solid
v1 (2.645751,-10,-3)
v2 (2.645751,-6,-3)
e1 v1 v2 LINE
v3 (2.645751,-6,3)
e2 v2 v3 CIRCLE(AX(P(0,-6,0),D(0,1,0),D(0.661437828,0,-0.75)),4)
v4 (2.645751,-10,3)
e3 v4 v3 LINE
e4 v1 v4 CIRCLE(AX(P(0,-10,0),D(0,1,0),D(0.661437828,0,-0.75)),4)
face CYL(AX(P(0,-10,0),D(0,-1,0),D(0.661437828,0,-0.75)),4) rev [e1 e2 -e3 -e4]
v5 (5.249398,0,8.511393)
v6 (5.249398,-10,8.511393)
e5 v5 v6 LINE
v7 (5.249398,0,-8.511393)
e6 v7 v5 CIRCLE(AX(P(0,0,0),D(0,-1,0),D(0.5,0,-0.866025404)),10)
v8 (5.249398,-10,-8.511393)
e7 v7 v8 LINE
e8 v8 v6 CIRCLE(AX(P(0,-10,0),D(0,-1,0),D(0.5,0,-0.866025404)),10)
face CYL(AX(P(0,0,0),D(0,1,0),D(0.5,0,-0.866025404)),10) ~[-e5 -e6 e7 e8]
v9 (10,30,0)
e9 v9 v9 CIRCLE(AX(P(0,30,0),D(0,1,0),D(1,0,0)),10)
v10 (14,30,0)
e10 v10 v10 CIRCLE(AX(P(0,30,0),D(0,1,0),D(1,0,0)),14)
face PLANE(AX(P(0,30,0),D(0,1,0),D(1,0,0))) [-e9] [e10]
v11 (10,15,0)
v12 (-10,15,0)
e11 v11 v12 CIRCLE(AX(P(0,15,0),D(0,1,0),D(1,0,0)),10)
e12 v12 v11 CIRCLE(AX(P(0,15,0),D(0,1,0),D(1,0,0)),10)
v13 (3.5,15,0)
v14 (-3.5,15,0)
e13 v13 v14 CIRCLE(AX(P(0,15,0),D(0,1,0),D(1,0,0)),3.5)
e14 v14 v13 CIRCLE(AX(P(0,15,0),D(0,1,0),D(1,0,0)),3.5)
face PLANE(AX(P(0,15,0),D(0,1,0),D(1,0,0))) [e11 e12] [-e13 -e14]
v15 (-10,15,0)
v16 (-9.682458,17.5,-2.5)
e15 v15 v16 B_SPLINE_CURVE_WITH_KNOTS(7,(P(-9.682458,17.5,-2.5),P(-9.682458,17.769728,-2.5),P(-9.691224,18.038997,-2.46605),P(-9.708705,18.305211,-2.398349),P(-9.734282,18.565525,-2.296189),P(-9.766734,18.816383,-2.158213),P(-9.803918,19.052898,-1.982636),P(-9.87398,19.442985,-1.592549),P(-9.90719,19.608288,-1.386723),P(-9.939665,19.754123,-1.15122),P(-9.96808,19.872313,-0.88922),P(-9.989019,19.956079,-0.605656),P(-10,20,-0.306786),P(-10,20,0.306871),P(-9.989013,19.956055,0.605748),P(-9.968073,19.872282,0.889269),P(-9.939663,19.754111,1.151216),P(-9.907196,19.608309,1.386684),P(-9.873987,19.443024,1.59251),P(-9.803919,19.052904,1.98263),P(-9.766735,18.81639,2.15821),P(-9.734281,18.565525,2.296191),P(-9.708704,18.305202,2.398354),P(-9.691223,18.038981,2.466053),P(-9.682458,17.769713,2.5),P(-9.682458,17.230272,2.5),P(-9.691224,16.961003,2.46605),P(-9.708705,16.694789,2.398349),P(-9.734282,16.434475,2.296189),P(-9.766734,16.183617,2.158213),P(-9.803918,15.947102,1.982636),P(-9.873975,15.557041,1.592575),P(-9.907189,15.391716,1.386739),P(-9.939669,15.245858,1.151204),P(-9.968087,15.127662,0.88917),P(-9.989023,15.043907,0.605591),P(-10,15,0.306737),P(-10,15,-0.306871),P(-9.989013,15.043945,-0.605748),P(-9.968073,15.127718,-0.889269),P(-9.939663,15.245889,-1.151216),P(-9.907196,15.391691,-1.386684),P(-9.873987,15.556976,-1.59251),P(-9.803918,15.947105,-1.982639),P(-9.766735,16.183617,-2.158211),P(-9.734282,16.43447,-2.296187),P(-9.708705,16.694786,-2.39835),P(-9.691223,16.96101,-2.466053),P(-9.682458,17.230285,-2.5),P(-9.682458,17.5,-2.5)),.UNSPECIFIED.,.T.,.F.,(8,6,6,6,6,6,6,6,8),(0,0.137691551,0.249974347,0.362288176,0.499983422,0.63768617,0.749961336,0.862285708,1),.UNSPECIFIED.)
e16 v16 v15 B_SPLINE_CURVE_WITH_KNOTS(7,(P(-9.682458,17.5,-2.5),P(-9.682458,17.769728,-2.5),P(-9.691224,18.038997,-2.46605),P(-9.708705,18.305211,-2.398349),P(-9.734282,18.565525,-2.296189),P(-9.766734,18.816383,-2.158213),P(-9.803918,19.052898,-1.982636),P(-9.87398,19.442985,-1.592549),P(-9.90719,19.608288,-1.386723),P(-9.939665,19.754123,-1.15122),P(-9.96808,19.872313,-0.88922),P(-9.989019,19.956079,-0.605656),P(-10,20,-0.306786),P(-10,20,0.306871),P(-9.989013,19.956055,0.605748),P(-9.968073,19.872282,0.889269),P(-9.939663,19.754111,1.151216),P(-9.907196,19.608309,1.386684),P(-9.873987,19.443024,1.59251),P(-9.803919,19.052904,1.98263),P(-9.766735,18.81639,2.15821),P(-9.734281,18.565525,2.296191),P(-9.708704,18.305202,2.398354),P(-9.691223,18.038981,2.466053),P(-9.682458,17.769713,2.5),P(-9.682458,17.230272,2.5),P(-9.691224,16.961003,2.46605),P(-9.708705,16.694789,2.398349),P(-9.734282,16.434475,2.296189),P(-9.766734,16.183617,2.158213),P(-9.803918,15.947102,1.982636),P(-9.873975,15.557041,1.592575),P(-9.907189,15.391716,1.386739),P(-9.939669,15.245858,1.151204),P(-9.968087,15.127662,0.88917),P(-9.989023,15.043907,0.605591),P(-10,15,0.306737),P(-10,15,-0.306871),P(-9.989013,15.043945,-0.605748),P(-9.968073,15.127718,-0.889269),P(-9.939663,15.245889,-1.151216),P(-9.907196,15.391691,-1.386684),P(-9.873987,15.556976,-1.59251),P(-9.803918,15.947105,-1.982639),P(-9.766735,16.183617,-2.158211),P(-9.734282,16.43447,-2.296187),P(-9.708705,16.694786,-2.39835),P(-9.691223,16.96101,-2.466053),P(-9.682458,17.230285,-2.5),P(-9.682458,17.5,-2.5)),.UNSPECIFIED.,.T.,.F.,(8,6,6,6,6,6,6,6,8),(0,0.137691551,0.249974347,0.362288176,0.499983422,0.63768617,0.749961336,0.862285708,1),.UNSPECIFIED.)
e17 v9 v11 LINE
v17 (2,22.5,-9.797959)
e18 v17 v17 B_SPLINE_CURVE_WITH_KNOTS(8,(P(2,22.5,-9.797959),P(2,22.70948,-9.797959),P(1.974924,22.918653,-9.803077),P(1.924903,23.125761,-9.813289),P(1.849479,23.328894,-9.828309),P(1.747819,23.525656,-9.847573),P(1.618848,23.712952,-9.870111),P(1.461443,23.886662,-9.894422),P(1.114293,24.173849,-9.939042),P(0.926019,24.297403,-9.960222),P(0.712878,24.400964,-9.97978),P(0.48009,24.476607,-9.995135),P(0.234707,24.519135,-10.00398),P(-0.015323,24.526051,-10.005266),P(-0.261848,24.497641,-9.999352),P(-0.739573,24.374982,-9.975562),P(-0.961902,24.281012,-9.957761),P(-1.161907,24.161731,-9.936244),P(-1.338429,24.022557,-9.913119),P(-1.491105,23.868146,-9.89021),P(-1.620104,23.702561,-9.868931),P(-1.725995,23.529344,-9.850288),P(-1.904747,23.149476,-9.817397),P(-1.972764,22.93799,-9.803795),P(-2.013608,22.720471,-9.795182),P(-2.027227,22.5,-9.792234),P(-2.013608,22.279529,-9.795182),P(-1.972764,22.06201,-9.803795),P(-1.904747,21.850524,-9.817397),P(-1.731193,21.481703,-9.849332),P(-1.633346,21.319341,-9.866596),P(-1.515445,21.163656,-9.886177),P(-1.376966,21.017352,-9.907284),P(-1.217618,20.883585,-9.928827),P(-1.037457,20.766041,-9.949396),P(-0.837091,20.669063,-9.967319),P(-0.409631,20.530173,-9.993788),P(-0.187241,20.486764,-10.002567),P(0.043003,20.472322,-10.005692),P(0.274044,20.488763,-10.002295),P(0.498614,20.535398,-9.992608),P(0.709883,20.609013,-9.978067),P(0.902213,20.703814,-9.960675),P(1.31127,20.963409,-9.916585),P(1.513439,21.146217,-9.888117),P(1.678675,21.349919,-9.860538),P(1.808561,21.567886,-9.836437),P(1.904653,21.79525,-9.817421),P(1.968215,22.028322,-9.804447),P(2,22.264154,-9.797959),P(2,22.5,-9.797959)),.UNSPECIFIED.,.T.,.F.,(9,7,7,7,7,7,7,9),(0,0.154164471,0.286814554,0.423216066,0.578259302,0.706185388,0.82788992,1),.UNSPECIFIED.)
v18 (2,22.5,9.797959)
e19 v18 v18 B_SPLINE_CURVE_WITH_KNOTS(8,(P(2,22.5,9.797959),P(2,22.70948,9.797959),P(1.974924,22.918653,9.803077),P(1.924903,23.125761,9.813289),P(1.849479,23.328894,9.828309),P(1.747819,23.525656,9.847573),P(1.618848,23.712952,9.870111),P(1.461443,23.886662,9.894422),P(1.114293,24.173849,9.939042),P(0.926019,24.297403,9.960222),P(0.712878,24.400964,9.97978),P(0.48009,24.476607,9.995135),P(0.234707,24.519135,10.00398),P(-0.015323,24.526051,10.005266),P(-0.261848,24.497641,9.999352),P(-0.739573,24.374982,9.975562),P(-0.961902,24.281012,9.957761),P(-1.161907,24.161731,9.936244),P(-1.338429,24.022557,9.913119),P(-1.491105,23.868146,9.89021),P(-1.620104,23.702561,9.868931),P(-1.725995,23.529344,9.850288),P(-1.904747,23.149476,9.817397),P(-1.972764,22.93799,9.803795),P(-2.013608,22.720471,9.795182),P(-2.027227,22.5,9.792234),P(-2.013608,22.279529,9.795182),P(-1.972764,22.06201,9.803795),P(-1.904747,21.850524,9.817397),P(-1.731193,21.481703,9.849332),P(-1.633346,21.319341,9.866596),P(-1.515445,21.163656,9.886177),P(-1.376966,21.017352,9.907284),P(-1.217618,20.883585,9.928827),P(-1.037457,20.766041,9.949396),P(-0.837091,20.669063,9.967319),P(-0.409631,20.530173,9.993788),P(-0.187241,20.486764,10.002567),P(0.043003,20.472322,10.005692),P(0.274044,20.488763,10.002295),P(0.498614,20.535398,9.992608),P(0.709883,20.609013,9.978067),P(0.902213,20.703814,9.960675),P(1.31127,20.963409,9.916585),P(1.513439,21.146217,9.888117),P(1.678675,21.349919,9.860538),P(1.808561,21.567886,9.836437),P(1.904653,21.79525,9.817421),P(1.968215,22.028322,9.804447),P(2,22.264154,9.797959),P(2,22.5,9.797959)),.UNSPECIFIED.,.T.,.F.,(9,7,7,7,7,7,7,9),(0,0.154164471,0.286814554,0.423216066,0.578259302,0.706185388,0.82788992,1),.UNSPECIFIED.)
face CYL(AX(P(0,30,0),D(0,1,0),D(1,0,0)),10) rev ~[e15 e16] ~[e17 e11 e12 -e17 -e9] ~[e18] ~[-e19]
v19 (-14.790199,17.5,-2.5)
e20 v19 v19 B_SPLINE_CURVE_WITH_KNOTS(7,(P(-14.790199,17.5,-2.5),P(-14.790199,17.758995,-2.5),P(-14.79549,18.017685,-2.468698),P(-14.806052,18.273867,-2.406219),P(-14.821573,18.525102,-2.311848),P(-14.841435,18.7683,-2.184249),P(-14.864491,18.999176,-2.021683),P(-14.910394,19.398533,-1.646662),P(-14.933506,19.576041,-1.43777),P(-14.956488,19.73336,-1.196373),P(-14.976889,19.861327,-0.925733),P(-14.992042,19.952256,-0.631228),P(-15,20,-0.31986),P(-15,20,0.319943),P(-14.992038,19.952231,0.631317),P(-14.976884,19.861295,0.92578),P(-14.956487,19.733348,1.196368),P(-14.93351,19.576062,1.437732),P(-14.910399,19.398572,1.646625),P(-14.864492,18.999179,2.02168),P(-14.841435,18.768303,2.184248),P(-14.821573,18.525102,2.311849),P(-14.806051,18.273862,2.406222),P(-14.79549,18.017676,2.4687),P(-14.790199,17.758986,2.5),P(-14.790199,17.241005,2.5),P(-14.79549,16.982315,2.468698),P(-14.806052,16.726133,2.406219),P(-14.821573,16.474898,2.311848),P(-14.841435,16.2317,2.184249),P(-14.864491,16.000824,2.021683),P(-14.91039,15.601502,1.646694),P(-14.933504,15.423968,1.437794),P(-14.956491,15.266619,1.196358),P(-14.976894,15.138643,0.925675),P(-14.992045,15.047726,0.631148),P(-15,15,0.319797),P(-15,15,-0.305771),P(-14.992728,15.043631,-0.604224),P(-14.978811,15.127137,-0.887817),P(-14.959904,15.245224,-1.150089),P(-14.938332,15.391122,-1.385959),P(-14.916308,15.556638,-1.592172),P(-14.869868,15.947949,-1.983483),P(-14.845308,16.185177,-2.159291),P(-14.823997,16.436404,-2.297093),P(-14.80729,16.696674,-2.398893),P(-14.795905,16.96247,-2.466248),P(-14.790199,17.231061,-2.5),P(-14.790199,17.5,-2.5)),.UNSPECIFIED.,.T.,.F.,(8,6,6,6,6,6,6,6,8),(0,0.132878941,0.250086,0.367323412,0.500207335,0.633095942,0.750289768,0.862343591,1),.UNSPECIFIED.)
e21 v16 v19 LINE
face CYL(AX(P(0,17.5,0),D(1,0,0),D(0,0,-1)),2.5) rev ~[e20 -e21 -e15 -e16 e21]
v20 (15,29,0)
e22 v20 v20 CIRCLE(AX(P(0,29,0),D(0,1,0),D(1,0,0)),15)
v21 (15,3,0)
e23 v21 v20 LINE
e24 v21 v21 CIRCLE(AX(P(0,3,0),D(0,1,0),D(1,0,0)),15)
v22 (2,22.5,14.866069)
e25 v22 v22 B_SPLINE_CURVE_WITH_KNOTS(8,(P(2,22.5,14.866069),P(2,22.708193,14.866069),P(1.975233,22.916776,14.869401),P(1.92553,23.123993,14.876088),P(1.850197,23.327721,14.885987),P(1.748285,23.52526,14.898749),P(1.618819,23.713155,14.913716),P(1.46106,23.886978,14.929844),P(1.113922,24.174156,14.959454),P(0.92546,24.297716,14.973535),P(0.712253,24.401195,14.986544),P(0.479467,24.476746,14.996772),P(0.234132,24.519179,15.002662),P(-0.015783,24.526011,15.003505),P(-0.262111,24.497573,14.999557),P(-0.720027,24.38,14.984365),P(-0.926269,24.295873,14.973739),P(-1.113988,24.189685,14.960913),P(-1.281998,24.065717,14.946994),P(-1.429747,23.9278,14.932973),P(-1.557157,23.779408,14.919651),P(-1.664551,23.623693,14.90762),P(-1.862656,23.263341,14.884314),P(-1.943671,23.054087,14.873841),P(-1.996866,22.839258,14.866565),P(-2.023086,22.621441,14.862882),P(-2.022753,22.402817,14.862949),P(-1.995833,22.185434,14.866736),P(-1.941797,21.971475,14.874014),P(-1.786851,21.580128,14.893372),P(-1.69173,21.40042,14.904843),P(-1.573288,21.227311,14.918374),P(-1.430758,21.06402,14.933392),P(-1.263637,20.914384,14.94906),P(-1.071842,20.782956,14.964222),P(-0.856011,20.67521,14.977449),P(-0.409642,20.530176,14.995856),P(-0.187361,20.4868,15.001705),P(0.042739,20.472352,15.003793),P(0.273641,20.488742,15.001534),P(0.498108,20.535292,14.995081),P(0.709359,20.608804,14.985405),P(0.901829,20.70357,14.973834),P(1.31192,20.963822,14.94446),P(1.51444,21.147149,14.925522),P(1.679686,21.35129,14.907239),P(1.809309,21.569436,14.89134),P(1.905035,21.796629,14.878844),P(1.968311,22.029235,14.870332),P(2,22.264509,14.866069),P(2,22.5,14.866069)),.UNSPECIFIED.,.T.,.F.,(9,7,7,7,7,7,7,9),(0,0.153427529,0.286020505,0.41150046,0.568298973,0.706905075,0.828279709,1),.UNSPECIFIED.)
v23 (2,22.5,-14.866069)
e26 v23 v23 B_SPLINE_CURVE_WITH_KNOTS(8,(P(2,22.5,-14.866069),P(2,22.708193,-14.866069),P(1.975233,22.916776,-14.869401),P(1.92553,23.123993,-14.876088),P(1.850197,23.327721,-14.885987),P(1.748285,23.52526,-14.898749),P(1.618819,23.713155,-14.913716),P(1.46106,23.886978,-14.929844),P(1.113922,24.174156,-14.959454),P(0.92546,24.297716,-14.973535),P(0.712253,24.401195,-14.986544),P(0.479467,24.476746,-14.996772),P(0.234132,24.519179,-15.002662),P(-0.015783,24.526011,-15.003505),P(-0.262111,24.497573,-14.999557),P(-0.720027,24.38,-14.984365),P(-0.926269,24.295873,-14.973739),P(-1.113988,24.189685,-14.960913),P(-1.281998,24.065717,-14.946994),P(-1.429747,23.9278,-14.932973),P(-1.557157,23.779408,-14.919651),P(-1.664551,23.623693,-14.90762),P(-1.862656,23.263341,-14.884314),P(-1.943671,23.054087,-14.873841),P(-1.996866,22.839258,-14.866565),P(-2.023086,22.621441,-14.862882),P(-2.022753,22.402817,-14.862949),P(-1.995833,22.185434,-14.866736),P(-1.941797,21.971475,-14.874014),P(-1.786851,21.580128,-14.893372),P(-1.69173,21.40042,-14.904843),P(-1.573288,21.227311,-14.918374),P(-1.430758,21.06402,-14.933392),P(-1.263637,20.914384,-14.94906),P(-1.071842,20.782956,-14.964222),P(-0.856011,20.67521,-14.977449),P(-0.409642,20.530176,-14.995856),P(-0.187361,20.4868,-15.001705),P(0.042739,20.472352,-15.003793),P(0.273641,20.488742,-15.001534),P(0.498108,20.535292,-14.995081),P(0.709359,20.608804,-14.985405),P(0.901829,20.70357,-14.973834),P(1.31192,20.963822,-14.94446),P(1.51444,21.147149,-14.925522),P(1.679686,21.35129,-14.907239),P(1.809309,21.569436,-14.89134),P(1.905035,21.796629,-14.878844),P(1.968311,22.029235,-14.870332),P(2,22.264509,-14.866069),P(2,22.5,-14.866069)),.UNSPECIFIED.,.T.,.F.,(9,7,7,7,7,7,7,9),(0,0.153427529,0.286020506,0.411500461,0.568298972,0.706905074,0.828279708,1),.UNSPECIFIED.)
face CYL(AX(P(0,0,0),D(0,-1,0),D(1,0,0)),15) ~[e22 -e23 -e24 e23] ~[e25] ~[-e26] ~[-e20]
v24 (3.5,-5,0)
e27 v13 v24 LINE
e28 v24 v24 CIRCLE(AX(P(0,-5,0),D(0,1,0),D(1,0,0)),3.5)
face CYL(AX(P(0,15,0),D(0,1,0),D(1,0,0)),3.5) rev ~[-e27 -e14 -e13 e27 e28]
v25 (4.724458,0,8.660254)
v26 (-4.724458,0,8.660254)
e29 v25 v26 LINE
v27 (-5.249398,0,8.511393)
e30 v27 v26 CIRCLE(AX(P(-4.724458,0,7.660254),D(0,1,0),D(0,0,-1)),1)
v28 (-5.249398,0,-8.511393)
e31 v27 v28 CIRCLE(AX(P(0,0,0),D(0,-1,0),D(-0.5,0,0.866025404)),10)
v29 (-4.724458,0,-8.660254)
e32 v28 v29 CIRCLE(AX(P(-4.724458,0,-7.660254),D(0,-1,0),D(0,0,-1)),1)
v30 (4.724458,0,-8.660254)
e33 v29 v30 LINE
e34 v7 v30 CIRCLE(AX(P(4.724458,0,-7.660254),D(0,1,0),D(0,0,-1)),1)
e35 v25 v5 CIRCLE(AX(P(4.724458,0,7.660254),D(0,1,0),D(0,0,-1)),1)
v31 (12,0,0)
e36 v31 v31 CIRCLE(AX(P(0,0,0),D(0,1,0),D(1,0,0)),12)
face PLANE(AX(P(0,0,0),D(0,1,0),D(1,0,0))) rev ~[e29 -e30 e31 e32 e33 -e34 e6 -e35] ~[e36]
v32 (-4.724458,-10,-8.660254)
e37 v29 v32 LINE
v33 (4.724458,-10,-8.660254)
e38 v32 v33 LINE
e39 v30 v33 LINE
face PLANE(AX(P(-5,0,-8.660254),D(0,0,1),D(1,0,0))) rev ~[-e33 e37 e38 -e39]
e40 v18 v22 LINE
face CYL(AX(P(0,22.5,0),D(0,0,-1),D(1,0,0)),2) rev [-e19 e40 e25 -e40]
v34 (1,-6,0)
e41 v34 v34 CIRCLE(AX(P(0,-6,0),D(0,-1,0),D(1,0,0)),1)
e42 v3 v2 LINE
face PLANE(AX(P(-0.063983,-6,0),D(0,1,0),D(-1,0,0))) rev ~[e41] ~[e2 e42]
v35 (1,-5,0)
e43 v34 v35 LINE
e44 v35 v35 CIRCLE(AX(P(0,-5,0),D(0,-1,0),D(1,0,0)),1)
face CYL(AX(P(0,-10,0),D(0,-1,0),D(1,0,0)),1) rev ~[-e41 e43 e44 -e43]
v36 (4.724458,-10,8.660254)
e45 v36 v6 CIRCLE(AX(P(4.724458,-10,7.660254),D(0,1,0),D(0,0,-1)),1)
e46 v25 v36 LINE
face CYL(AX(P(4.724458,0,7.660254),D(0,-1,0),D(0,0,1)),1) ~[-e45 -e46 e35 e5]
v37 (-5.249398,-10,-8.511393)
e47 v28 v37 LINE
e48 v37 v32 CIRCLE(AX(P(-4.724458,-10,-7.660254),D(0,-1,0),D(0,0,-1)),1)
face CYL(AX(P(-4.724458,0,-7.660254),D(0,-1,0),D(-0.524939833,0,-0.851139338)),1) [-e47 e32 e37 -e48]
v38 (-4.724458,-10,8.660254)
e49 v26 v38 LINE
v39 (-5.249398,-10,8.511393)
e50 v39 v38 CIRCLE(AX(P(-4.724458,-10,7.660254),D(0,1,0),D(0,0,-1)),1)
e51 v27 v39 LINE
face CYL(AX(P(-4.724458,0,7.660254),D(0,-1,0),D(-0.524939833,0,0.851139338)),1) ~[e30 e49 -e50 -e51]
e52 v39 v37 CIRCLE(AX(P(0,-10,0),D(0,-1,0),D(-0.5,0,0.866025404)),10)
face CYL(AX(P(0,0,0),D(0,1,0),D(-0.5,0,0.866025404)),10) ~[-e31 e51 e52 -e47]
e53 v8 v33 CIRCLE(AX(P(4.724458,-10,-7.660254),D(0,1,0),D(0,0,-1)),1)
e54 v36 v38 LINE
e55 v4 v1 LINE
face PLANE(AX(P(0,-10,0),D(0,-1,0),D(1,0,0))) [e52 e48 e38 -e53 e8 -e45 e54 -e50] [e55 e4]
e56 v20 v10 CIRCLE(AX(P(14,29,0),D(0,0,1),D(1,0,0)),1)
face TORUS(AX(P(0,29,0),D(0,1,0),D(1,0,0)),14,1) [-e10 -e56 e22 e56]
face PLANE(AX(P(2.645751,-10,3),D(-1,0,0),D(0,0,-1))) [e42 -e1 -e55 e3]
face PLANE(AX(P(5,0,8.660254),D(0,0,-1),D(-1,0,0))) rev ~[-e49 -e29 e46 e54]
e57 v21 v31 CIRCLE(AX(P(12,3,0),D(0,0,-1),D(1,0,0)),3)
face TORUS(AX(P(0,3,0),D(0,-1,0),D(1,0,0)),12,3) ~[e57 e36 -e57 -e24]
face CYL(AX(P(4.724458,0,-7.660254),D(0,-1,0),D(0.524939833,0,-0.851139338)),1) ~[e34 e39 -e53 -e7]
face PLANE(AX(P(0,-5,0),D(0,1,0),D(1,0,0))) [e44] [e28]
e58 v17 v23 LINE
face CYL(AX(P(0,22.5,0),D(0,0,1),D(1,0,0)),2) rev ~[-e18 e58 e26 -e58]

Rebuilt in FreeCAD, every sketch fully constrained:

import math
import FreeCAD as App
import Part
import Sketcher
from FreeCAD import Vector


def edges_at(feature, points):
    """Names of the edges that pass closest to the given points."""
    edges = feature.Shape.Edges
    near = lambda p: min(range(len(edges)), key=lambda i: edges[i].distToShape(Part.Vertex(*p))[0])
    return sorted({f"Edge{near(p) + 1}" for p in points})

doc = App.newDocument("Part")
body = doc.addObject("PartDesign::Body", "Body")

# Sketch on XZ plane
sketch1 = body.newObject("Sketcher::SketchObject", "Sketch")
sketch1.AttachmentSupport = (doc.getObject("XZ_Plane"), [""])
sketch1.MapMode = "FlatFace"
sketch1.addGeometry(Part.Circle(Vector(0, 0, 0), Vector(0, 0, 1), 15), False)
sketch1.addConstraint(Sketcher.Constraint("Coincident", 0, 3, -1, 1))
sketch1.addConstraint(Sketcher.Constraint("Diameter", 0, 30.0))
pad1 = body.newObject("PartDesign::Pad", "Pad")
pad1.Profile = sketch1
pad1.Length = 30
pad1.Reversed = True

# Sketch on XZ plane
sketch2 = body.newObject("Sketcher::SketchObject", "Sketch001")
sketch2.AttachmentSupport = (doc.getObject("XZ_Plane"), [""])
sketch2.MapMode = "FlatFace"
sketch2.AttachmentOffset = App.Placement(Vector(0, 0, -30), App.Rotation())
sketch2.addGeometry(Part.Circle(Vector(0, 0, 0), Vector(0, 0, 1), 10), False)
sketch2.addConstraint(Sketcher.Constraint("Coincident", 0, 3, -1, 1))
sketch2.addConstraint(Sketcher.Constraint("Diameter", 0, 20.0))
pocket1 = body.newObject("PartDesign::Pocket", "Pocket")
pocket1.Profile = sketch2
pocket1.Length = 15
pocket1.Reversed = True

# Sketch on XZ plane
sketch3 = body.newObject("Sketcher::SketchObject", "Sketch002")
sketch3.AttachmentSupport = (doc.getObject("XZ_Plane"), [""])
sketch3.MapMode = "FlatFace"
sketch3.addGeometry(Part.LineSegment(Vector(-5, -9, 0), Vector(5, -9, 0)), False)
sketch3.addGeometry(Part.ArcOfCircle(Part.Circle(Vector(0, 0, 0), Vector(0, 0, 1), 10), math.radians(-60), math.radians(60)), False)
sketch3.addGeometry(Part.LineSegment(Vector(5, 9, 0), Vector(-5, 9, 0)), False)
sketch3.addGeometry(Part.ArcOfCircle(Part.Circle(Vector(0, 0, 0), Vector(0, 0, 1), 10), math.radians(120), math.radians(240)), False)
sketch3.addConstraint(Sketcher.Constraint("Coincident", 0, 2, 1, 1))
sketch3.addConstraint(Sketcher.Constraint("Coincident", 1, 2, 2, 1))
sketch3.addConstraint(Sketcher.Constraint("Coincident", 2, 2, 3, 1))
sketch3.addConstraint(Sketcher.Constraint("Coincident", 3, 2, 0, 1))
sketch3.addConstraint(Sketcher.Constraint("Horizontal", 0))
sketch3.addConstraint(Sketcher.Constraint("Horizontal", 2))
sketch3.addConstraint(Sketcher.Constraint("Coincident", 1, 3, -1, 1))
sketch3.addConstraint(Sketcher.Constraint("Coincident", 3, 3, -1, 1))
sketch3.addConstraint(Sketcher.Constraint("Equal", 1, 3))
sketch3.addConstraint(Sketcher.Constraint("Vertical", 0, 2, 1, 2))
sketch3.addConstraint(Sketcher.Constraint("Radius", 1, 10.0))
sketch3.addConstraint(Sketcher.Constraint("DistanceX", 0, 1, 0, 2, 10.0))
pad2 = body.newObject("PartDesign::Pad", "Pad001")
pad2.Profile = sketch3
pad2.Length = 10

# Sketch on XZ plane
sketch4 = body.newObject("Sketcher::SketchObject", "Sketch003")
sketch4.AttachmentSupport = (doc.getObject("XZ_Plane"), [""])
sketch4.MapMode = "FlatFace"
sketch4.AttachmentOffset = App.Placement(Vector(0, 0, 10), App.Rotation())
sketch4.addGeometry(Part.Circle(Vector(0, 0, 0), Vector(0, 0, 1), 1), False)
sketch4.addConstraint(Sketcher.Constraint("Coincident", 0, 3, -1, 1))
sketch4.addConstraint(Sketcher.Constraint("Diameter", 0, 2.0))
pocket2 = body.newObject("PartDesign::Pocket", "Pocket001")
pocket2.Profile = sketch4
pocket2.Length = 5

# Sketch on XZ plane
sketch5 = body.newObject("Sketcher::SketchObject", "Sketch004")
sketch5.AttachmentSupport = (doc.getObject("XZ_Plane"), [""])
sketch5.MapMode = "FlatFace"
sketch5.AttachmentOffset = App.Placement(Vector(0, 0, -15), App.Rotation())
sketch5.addGeometry(Part.Circle(Vector(0, 0, 0), Vector(0, 0, 1), 3.5), False)
sketch5.addConstraint(Sketcher.Constraint("Coincident", 0, 3, -1, 1))
sketch5.addConstraint(Sketcher.Constraint("Diameter", 0, 7.0))
pocket3 = body.newObject("PartDesign::Pocket", "Pocket002")
pocket3.Profile = sketch5
pocket3.Length = 20
pocket3.Reversed = True

# Sketch on XY plane
sketch6 = body.newObject("Sketcher::SketchObject", "Sketch005")
sketch6.AttachmentSupport = (doc.getObject("XY_Plane"), [""])
sketch6.MapMode = "FlatFace"
sketch6.addGeometry(Part.Circle(Vector(0, 22.5, 0), Vector(0, 0, 1), 2), False)
sketch6.addConstraint(Sketcher.Constraint("PointOnObject", 0, 3, -2))
sketch6.addConstraint(Sketcher.Constraint("Diameter", 0, 4.0))
sketch6.addConstraint(Sketcher.Constraint("DistanceY", -1, 1, 0, 3, 22.5))
pocket4 = body.newObject("PartDesign::Pocket", "Pocket003")
pocket4.Profile = sketch6
pocket4.Type = "ThroughAll"
pocket4.Midplane = True

# Sketch on YZ plane
sketch7 = body.newObject("Sketcher::SketchObject", "Sketch006")
sketch7.AttachmentSupport = (doc.getObject("YZ_Plane"), [""])
sketch7.MapMode = "FlatFace"
sketch7.addGeometry(Part.Circle(Vector(17.5, 0, 0), Vector(0, 0, 1), 2.5), False)
sketch7.addConstraint(Sketcher.Constraint("PointOnObject", 0, 3, -1))
sketch7.addConstraint(Sketcher.Constraint("Diameter", 0, 5.0))
sketch7.addConstraint(Sketcher.Constraint("DistanceX", -1, 1, 0, 3, 17.5))
pocket5 = body.newObject("PartDesign::Pocket", "Pocket004")
pocket5.Profile = sketch7
pocket5.Type = "ThroughAll"

# Sketch on XZ plane
sketch8 = body.newObject("Sketcher::SketchObject", "Sketch007")
sketch8.AttachmentSupport = (doc.getObject("XZ_Plane"), [""])
sketch8.MapMode = "FlatFace"
sketch8.AttachmentOffset = App.Placement(Vector(0, 0, 10), App.Rotation())
sketch8.addGeometry(Part.LineSegment(Vector(2.6, -3, 0), Vector(2.6, 3, 0)), False)
sketch8.addGeometry(Part.ArcOfCircle(Part.Circle(Vector(0, 0, 0), Vector(0, 0, 1), 4), math.radians(49), math.radians(311)), False)
sketch8.addConstraint(Sketcher.Constraint("Coincident", 0, 1, 1, 2))
sketch8.addConstraint(Sketcher.Constraint("Coincident", 1, 1, 0, 2))
sketch8.addConstraint(Sketcher.Constraint("Vertical", 0))
sketch8.addConstraint(Sketcher.Constraint("Coincident", 1, 3, -1, 1))
sketch8.addConstraint(Sketcher.Constraint("Radius", 1, 4.0))
sketch8.addConstraint(Sketcher.Constraint("DistanceY", 0, 1, 0, 2, 6.0))
pocket6 = body.newObject("PartDesign::Pocket", "Pocket005")
pocket6.Profile = sketch8
pocket6.Length = 4
doc.recompute()

fillet = body.newObject("PartDesign::Fillet", "Fillet")
fillet.Base = (pocket6, edges_at(pocket6, [(-15, 30, 0)]))
fillet.Radius = 1
doc.recompute()

fillet2 = body.newObject("PartDesign::Fillet", "Fillet001")
fillet2.Base = (fillet, edges_at(fillet, [(-15, 0, 0)]))
fillet2.Radius = 3
doc.recompute()

fillet3 = body.newObject("PartDesign::Fillet", "Fillet002")
fillet3.Base = (fillet2, edges_at(fillet2, [
    (-5, -5, 8.66),
    (-5, -5, -8.66),
    (5, -5, -8.66),
    (5, -5, 8.66),
]))
fillet3.Radius = 1

doc.recompute()
